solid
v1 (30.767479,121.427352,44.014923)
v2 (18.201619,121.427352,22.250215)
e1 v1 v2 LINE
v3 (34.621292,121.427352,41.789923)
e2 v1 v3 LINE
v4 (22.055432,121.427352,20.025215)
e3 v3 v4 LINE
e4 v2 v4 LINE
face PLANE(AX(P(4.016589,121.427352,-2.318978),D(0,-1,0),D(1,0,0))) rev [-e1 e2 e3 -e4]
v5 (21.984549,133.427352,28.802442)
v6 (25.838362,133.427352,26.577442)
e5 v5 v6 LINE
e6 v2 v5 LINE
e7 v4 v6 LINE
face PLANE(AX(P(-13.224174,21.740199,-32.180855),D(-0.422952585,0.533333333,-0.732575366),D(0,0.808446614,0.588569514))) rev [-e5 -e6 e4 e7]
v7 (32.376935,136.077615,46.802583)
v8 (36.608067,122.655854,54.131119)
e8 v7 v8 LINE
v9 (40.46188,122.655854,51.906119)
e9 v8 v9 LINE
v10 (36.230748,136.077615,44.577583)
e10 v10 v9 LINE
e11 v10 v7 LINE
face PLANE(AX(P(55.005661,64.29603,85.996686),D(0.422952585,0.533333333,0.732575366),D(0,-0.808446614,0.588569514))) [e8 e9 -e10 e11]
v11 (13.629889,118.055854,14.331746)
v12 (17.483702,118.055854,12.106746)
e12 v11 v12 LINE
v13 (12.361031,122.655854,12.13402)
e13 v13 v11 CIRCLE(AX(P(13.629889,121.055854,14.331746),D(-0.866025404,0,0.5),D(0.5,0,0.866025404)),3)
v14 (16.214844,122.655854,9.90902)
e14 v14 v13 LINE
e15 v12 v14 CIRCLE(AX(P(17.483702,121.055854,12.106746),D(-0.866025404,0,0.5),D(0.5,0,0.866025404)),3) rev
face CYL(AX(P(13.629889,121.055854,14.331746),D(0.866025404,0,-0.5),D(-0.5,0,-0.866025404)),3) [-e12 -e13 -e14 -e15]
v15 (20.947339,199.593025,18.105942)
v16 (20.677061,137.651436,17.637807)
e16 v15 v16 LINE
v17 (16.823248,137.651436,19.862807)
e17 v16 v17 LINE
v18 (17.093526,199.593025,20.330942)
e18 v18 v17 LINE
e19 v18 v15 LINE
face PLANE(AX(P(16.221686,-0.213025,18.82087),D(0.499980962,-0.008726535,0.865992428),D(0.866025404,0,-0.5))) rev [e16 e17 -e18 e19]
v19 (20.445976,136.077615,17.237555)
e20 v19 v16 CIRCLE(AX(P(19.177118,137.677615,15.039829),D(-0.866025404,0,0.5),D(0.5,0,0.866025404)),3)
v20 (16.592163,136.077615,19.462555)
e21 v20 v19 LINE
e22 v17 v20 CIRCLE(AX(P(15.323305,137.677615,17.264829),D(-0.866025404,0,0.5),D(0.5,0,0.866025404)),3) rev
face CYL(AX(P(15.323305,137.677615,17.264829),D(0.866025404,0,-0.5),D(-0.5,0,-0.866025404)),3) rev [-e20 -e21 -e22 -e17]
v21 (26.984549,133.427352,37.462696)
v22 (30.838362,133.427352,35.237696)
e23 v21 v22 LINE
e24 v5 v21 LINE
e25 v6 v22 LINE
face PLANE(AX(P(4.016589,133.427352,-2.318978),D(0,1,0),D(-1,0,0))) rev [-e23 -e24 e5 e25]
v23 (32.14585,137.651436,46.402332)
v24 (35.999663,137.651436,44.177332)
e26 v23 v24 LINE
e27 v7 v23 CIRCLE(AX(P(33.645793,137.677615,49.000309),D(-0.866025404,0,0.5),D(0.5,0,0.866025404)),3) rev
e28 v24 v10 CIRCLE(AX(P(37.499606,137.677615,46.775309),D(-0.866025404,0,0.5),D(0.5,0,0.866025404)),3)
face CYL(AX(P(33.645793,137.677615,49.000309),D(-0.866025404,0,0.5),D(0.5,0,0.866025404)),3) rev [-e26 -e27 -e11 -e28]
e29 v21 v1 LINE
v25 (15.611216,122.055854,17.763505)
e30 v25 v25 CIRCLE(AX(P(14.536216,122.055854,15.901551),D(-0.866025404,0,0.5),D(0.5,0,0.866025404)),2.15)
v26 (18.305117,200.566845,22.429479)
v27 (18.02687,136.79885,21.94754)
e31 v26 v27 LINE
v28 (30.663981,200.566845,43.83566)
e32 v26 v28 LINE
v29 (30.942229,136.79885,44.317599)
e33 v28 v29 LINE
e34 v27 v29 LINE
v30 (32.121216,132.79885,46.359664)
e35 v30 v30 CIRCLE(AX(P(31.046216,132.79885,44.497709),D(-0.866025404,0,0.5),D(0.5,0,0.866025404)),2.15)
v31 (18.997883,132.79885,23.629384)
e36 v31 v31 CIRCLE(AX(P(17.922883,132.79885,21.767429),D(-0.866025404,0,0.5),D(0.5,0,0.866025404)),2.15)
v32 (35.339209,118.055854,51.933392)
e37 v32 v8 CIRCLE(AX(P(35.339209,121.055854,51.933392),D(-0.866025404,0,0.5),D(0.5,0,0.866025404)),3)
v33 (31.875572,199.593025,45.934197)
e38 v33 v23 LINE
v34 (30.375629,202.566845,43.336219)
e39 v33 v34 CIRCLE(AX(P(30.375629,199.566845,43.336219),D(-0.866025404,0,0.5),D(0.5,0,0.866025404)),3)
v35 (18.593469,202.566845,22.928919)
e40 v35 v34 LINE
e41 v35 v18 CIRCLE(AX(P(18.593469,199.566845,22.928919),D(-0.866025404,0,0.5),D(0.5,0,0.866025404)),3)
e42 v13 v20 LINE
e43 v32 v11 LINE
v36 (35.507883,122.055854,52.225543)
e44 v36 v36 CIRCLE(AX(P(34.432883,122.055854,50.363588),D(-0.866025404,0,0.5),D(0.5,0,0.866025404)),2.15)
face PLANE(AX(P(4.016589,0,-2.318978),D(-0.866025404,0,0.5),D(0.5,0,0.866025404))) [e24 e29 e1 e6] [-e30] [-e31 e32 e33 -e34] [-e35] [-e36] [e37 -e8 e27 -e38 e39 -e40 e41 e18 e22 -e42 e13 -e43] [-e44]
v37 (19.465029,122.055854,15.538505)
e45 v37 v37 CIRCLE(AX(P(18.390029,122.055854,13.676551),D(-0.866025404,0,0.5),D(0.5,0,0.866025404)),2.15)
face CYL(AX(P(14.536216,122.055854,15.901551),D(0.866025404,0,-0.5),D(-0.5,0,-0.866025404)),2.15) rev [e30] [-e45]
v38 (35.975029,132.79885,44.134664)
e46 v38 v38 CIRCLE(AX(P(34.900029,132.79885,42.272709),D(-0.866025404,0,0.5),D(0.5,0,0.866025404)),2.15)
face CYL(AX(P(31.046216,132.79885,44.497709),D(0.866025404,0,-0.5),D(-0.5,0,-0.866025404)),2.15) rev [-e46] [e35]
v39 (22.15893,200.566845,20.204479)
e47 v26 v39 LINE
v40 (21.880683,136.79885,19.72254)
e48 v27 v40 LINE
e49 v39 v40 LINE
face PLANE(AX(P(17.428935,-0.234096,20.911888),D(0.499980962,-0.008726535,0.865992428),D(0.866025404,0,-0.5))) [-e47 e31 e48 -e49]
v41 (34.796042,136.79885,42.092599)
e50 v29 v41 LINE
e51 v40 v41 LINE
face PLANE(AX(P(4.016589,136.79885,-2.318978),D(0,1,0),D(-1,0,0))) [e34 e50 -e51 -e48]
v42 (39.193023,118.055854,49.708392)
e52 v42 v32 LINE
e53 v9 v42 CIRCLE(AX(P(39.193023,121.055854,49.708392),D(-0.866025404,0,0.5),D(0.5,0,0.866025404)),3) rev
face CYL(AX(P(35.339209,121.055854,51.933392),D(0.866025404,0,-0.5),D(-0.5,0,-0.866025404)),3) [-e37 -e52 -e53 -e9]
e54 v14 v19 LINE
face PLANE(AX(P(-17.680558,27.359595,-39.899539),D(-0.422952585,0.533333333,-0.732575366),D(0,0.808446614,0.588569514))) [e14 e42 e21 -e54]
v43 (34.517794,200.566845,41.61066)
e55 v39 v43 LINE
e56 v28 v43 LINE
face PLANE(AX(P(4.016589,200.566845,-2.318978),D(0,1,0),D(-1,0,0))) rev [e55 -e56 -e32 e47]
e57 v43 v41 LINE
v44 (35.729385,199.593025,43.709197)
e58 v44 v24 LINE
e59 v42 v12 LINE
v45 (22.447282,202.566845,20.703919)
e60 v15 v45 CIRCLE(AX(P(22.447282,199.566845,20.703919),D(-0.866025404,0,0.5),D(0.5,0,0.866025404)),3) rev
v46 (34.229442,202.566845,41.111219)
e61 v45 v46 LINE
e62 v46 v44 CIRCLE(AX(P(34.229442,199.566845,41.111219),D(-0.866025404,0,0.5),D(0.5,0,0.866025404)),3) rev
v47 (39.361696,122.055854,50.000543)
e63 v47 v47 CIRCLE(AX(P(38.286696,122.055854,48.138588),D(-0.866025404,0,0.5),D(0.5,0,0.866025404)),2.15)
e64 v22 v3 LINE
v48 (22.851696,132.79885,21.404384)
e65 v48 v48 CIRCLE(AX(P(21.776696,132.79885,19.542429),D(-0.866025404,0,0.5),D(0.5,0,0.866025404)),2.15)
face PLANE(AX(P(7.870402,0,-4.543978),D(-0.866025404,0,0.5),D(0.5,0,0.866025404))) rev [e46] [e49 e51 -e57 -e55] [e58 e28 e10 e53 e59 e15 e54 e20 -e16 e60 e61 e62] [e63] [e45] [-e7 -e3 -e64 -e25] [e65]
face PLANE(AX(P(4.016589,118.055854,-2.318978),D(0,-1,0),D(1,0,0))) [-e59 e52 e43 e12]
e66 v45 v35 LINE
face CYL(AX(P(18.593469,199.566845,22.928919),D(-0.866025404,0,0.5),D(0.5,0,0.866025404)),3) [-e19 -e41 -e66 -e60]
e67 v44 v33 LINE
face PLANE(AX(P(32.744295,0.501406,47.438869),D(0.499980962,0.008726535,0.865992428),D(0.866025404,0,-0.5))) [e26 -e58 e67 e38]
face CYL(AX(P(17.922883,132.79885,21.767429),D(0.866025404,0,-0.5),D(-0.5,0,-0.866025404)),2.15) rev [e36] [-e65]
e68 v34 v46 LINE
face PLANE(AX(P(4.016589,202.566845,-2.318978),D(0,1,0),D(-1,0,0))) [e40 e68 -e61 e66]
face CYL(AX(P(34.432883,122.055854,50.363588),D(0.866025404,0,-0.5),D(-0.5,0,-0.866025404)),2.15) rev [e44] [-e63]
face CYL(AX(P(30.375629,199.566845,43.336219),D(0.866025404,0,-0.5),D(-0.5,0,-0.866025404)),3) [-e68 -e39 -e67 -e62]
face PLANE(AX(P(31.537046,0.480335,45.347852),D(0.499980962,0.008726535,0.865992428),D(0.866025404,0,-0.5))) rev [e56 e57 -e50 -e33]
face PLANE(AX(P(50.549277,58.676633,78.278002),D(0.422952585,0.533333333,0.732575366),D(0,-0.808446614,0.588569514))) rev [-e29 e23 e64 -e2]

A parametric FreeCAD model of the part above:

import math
import FreeCAD as App
import Part
import Sketcher
from FreeCAD import Vector
Q = App.Units.Quantity


def edges_at(feature, points):
    """Names of the edges that pass closest to the given points."""
    edges = feature.Shape.Edges
    near = lambda p: min(range(len(edges)), key=lambda i: edges[i].distToShape(Part.Vertex(*p))[0])
    return sorted({f"Edge{near(p) + 1}" for p in points})

doc = App.newDocument("Part")
body = doc.addObject("PartDesign::Body", "Body")

# Sketch on an angled plane
sketch1 = body.newObject("Sketcher::SketchObject", "Sketch")
sketch1.Placement = App.Placement(Vector(7.870402, 0, -4.543978), App.Rotation(Vector(0.5, 0, 0.866025404), Vector(0, 1, 0), Vector(-0.866025404, 0, 0.5), "ZXY"))
sketch1.addGeometry(Part.LineSegment(Vector(25.605879, 136.79885, 0), Vector(13.788639, 118.055854, 0)), False)
sketch1.addGeometry(Part.LineSegment(Vector(13.788639, 118.055854, 0), Vector(68.083204, 118.055854, 0)), False)
sketch1.addGeometry(Part.LineSegment(Vector(68.083204, 118.055854, 0), Vector(56.265964, 136.79885, 0)), False)
sketch1.addGeometry(Part.LineSegment(Vector(56.265964, 136.79885, 0), Vector(55.692015, 202.566845, 0)), False)
sketch1.addGeometry(Part.LineSegment(Vector(55.692015, 202.566845, 0), Vector(26.179827, 202.566845, 0)), False)
sketch1.addGeometry(Part.LineSegment(Vector(26.179827, 202.566845, 0), Vector(25.605879, 136.79885, 0)), False)
sketch1.addGeometry(Part.LineSegment(Vector(53.851281, 136.79885, 0), Vector(28.020562, 136.79885, 0)), False)
sketch1.addGeometry(Part.LineSegment(Vector(28.020562, 136.79885, 0), Vector(28.577057, 200.566845, 0)), False)
sketch1.addGeometry(Part.LineSegment(Vector(28.577057, 200.566845, 0), Vector(53.294786, 200.566845, 0)), False)
sketch1.addGeometry(Part.LineSegment(Vector(53.294786, 200.566845, 0), Vector(53.851281, 136.79885, 0)), False)
sketch1.addGeometry(Part.Circle(Vector(21.039255, 122.055854, 0), Vector(0, 0, 1), 2.15), False)
sketch1.addGeometry(Part.LineSegment(Vector(45.935921, 133.427352, 0), Vector(53.501781, 121.427352, 0)), False)
sketch1.addGeometry(Part.LineSegment(Vector(53.501781, 121.427352, 0), Vector(28.370061, 121.427352, 0)), False)
sketch1.addGeometry(Part.LineSegment(Vector(28.370061, 121.427352, 0), Vector(35.935921, 133.427352, 0)), False)
sketch1.addGeometry(Part.LineSegment(Vector(35.935921, 133.427352, 0), Vector(45.935921, 133.427352, 0)), False)
sketch1.addGeometry(Part.Circle(Vector(60.832588, 122.055854, 0), Vector(0, 0, 1), 2.15), False)
sketch1.addGeometry(Part.ArcOfCircle(Part.Circle(Vector(27.812588, 132.79885, 0), Vector(0, 0, 1), 2.15), math.radians(0), math.radians(76.689872)), False)
sketch1.addGeometry(Part.ArcOfCircle(Part.Circle(Vector(27.812588, 132.79885, 0), Vector(0, 0, 1), 2.15), math.radians(-145.515499), math.radians(0)), False)
sketch1.addGeometry(Part.ArcOfCircle(Part.Circle(Vector(27.812588, 132.79885, 0), Vector(0, 0, 1), 2.15), math.radians(76.689872), math.radians(214.484501)), False)
sketch1.addGeometry(Part.Circle(Vector(54.059255, 132.79885, 0), Vector(0, 0, 1), 2.15), False)
sketch1.addConstraint(Sketcher.Constraint("Coincident", 0, 2, 1, 1))
sketch1.addConstraint(Sketcher.Constraint("Coincident", 1, 2, 2, 1))
sketch1.addConstraint(Sketcher.Constraint("Coincident", 2, 2, 3, 1))
sketch1.addConstraint(Sketcher.Constraint("Coincident", 3, 2, 4, 1))
sketch1.addConstraint(Sketcher.Constraint("Coincident", 4, 2, 5, 1))
sketch1.addConstraint(Sketcher.Constraint("Coincident", 5, 2, 0, 1))
sketch1.addConstraint(Sketcher.Constraint("Coincident", 6, 2, 7, 1))
sketch1.addConstraint(Sketcher.Constraint("Coincident", 7, 2, 8, 1))
sketch1.addConstraint(Sketcher.Constraint("Coincident", 8, 2, 9, 1))
sketch1.addConstraint(Sketcher.Constraint("Coincident", 9, 2, 6, 1))
sketch1.addConstraint(Sketcher.Constraint("Coincident", 11, 2, 12, 1))
sketch1.addConstraint(Sketcher.Constraint("Coincident", 12, 2, 13, 1))
sketch1.addConstraint(Sketcher.Constraint("Coincident", 13, 2, 14, 1))
sketch1.addConstraint(Sketcher.Constraint("Coincident", 14, 2, 11, 1))
sketch1.addConstraint(Sketcher.Constraint("Tangent", 16, 1, 17, 2))
sketch1.addConstraint(Sketcher.Constraint("Tangent", 17, 1, 18, 2))
sketch1.addConstraint(Sketcher.Constraint("Tangent", 18, 1, 16, 2))
sketch1.addConstraint(Sketcher.Constraint("Horizontal", 1))
sketch1.addConstraint(Sketcher.Constraint("Horizontal", 4))
sketch1.addConstraint(Sketcher.Constraint("Horizontal", 6))
sketch1.addConstraint(Sketcher.Constraint("Horizontal", 8))
sketch1.addConstraint(Sketcher.Constraint("Horizontal", 12))
sketch1.addConstraint(Sketcher.Constraint("Horizontal", 14))
sketch1.addConstraint(Sketcher.Constraint("Equal", 10, 15))
sketch1.addConstraint(Sketcher.Constraint("Equal", 15, 16))
sketch1.addConstraint(Sketcher.Constraint("Equal", 18, 19))
sketch1.addConstraint(Sketcher.Constraint("Parallel", 5, 7))
sketch1.addConstraint(Sketcher.Constraint("Parallel", 3, 9))
sketch1.addConstraint(Sketcher.Constraint("Parallel", 2, 11))
sketch1.addConstraint(Sketcher.Constraint("Parallel", 0, 13))
sketch1.addConstraint(Sketcher.Constraint("Horizontal", 10, 3, 15, 3))
sketch1.addConstraint(Sketcher.Constraint("Horizontal", 18, 3, 19, 3))
sketch1.addConstraint(Sketcher.Constraint("Horizontal", 2, 2, 5, 2))
sketch1.addConstraint(Sketcher.Constraint("Horizontal", 5, 2, 6, 2))
sketch1.addConstraint(Sketcher.Constraint("Horizontal", 19, 3, 16, 1))
sketch1.addConstraint(Sketcher.Constraint("Equal", 0, 2))
sketch1.addConstraint(Sketcher.Constraint("Equal", 3, 5))
sketch1.addConstraint(Sketcher.Constraint("Diameter", 10, Q("4.3 mm")))
sketch1.addConstraint(Sketcher.Constraint("DistanceX", 14, 1, 14, 2, Q("10 mm")))
sketch1.addConstraint(Sketcher.Constraint("Angle", 3, Q("90.5 deg")))
sketch1.addConstraint(Sketcher.Constraint("DistanceY", 0, 2, 10, 3, Q("4 mm")))
sketch1.addConstraint(Sketcher.Constraint("DistanceY", 19, 3, 2, 2, Q("4 mm")))
sketch1.addConstraint(Sketcher.Constraint("DistanceY", 7, 2, 4, 2, Q("2 mm")))
sketch1.addConstraint(Sketcher.Constraint("DistanceY", 11, 2, 14, 2, Q("12 mm")))
sketch1.addConstraint(Sketcher.Constraint("DistanceX", 16, 3, 15, 3, Q("33.02 mm")))
sketch1.addConstraint(Sketcher.Constraint("DistanceX", 10, 3, 19, 3, Q("33.02 mm")))
sketch1.addConstraint(Sketcher.Constraint("Distance", 3, Q("65.7705 mm")))
sketch1.addConstraint(Sketcher.Constraint("DistanceX", 6, 2, 6, 1, Q("25.830719 mm")))
sketch1.addConstraint(Sketcher.Constraint("DistanceX", 12, 2, 12, 1, Q("25.13172 mm")))
sketch1.addConstraint(Sketcher.Constraint("DistanceX", 11, 2, 9, 2, Q("0.349499 mm")))
sketch1.addConstraint(Sketcher.Constraint("DistanceX", 17, 1, 16, 3, Q("1.772201 mm")))
sketch1.addConstraint(Sketcher.Constraint("DistanceX", 1, 1, 1, 2, Q("54.294565 mm")))
sketch1.addConstraint(Sketcher.Constraint("DistanceX", 4, 2, 4, 1, Q("29.512188 mm")))
sketch1.addConstraint(Sketcher.Constraint("DistanceY", -1, 1, 16, 3, Q("132.79885 mm")))
sketch1.addConstraint(Sketcher.Constraint("DistanceX", -1, 1, 0, 2, Q("13.788639 mm")))
sketch1.addConstraint(Sketcher.Constraint("DistanceX", -1, 1, 6, 2, Q("28.020562 mm")))
sketch1.addConstraint(Sketcher.Constraint("DistanceY", -1, 1, 11, 2, Q("121.427352 mm")))
sketch1.addConstraint(Sketcher.Constraint("DistanceX", 0, 2, 16, 3, Q("14.023949 mm")))
sketch1.addConstraint(Sketcher.Constraint("DistanceX", 19, 3, 1, 2, Q("14.023949 mm")))
sketch1.addConstraint(Sketcher.Constraint("DistanceX", -1, 1, 18, 1, Q("28.307565 mm")))
pad1 = body.newObject("PartDesign::Pad", "Pad")
pad1.Profile = sketch1
pad1.Length = 4.45
doc.recompute()

fillet = body.newObject("PartDesign::Fillet", "Fillet")
fillet.Base = (pad1, edges_at(pad1, [
    (12.838, 118.056, 8.51),
    (18.746, 136.799, 18.744),
    (19.033, 202.567, 19.241),
    (33.79, 202.567, 44.799),
    (34.076, 136.799, 45.296),
    (39.985, 118.056, 55.53),
]))
fillet.Radius = 3

doc.recompute()
